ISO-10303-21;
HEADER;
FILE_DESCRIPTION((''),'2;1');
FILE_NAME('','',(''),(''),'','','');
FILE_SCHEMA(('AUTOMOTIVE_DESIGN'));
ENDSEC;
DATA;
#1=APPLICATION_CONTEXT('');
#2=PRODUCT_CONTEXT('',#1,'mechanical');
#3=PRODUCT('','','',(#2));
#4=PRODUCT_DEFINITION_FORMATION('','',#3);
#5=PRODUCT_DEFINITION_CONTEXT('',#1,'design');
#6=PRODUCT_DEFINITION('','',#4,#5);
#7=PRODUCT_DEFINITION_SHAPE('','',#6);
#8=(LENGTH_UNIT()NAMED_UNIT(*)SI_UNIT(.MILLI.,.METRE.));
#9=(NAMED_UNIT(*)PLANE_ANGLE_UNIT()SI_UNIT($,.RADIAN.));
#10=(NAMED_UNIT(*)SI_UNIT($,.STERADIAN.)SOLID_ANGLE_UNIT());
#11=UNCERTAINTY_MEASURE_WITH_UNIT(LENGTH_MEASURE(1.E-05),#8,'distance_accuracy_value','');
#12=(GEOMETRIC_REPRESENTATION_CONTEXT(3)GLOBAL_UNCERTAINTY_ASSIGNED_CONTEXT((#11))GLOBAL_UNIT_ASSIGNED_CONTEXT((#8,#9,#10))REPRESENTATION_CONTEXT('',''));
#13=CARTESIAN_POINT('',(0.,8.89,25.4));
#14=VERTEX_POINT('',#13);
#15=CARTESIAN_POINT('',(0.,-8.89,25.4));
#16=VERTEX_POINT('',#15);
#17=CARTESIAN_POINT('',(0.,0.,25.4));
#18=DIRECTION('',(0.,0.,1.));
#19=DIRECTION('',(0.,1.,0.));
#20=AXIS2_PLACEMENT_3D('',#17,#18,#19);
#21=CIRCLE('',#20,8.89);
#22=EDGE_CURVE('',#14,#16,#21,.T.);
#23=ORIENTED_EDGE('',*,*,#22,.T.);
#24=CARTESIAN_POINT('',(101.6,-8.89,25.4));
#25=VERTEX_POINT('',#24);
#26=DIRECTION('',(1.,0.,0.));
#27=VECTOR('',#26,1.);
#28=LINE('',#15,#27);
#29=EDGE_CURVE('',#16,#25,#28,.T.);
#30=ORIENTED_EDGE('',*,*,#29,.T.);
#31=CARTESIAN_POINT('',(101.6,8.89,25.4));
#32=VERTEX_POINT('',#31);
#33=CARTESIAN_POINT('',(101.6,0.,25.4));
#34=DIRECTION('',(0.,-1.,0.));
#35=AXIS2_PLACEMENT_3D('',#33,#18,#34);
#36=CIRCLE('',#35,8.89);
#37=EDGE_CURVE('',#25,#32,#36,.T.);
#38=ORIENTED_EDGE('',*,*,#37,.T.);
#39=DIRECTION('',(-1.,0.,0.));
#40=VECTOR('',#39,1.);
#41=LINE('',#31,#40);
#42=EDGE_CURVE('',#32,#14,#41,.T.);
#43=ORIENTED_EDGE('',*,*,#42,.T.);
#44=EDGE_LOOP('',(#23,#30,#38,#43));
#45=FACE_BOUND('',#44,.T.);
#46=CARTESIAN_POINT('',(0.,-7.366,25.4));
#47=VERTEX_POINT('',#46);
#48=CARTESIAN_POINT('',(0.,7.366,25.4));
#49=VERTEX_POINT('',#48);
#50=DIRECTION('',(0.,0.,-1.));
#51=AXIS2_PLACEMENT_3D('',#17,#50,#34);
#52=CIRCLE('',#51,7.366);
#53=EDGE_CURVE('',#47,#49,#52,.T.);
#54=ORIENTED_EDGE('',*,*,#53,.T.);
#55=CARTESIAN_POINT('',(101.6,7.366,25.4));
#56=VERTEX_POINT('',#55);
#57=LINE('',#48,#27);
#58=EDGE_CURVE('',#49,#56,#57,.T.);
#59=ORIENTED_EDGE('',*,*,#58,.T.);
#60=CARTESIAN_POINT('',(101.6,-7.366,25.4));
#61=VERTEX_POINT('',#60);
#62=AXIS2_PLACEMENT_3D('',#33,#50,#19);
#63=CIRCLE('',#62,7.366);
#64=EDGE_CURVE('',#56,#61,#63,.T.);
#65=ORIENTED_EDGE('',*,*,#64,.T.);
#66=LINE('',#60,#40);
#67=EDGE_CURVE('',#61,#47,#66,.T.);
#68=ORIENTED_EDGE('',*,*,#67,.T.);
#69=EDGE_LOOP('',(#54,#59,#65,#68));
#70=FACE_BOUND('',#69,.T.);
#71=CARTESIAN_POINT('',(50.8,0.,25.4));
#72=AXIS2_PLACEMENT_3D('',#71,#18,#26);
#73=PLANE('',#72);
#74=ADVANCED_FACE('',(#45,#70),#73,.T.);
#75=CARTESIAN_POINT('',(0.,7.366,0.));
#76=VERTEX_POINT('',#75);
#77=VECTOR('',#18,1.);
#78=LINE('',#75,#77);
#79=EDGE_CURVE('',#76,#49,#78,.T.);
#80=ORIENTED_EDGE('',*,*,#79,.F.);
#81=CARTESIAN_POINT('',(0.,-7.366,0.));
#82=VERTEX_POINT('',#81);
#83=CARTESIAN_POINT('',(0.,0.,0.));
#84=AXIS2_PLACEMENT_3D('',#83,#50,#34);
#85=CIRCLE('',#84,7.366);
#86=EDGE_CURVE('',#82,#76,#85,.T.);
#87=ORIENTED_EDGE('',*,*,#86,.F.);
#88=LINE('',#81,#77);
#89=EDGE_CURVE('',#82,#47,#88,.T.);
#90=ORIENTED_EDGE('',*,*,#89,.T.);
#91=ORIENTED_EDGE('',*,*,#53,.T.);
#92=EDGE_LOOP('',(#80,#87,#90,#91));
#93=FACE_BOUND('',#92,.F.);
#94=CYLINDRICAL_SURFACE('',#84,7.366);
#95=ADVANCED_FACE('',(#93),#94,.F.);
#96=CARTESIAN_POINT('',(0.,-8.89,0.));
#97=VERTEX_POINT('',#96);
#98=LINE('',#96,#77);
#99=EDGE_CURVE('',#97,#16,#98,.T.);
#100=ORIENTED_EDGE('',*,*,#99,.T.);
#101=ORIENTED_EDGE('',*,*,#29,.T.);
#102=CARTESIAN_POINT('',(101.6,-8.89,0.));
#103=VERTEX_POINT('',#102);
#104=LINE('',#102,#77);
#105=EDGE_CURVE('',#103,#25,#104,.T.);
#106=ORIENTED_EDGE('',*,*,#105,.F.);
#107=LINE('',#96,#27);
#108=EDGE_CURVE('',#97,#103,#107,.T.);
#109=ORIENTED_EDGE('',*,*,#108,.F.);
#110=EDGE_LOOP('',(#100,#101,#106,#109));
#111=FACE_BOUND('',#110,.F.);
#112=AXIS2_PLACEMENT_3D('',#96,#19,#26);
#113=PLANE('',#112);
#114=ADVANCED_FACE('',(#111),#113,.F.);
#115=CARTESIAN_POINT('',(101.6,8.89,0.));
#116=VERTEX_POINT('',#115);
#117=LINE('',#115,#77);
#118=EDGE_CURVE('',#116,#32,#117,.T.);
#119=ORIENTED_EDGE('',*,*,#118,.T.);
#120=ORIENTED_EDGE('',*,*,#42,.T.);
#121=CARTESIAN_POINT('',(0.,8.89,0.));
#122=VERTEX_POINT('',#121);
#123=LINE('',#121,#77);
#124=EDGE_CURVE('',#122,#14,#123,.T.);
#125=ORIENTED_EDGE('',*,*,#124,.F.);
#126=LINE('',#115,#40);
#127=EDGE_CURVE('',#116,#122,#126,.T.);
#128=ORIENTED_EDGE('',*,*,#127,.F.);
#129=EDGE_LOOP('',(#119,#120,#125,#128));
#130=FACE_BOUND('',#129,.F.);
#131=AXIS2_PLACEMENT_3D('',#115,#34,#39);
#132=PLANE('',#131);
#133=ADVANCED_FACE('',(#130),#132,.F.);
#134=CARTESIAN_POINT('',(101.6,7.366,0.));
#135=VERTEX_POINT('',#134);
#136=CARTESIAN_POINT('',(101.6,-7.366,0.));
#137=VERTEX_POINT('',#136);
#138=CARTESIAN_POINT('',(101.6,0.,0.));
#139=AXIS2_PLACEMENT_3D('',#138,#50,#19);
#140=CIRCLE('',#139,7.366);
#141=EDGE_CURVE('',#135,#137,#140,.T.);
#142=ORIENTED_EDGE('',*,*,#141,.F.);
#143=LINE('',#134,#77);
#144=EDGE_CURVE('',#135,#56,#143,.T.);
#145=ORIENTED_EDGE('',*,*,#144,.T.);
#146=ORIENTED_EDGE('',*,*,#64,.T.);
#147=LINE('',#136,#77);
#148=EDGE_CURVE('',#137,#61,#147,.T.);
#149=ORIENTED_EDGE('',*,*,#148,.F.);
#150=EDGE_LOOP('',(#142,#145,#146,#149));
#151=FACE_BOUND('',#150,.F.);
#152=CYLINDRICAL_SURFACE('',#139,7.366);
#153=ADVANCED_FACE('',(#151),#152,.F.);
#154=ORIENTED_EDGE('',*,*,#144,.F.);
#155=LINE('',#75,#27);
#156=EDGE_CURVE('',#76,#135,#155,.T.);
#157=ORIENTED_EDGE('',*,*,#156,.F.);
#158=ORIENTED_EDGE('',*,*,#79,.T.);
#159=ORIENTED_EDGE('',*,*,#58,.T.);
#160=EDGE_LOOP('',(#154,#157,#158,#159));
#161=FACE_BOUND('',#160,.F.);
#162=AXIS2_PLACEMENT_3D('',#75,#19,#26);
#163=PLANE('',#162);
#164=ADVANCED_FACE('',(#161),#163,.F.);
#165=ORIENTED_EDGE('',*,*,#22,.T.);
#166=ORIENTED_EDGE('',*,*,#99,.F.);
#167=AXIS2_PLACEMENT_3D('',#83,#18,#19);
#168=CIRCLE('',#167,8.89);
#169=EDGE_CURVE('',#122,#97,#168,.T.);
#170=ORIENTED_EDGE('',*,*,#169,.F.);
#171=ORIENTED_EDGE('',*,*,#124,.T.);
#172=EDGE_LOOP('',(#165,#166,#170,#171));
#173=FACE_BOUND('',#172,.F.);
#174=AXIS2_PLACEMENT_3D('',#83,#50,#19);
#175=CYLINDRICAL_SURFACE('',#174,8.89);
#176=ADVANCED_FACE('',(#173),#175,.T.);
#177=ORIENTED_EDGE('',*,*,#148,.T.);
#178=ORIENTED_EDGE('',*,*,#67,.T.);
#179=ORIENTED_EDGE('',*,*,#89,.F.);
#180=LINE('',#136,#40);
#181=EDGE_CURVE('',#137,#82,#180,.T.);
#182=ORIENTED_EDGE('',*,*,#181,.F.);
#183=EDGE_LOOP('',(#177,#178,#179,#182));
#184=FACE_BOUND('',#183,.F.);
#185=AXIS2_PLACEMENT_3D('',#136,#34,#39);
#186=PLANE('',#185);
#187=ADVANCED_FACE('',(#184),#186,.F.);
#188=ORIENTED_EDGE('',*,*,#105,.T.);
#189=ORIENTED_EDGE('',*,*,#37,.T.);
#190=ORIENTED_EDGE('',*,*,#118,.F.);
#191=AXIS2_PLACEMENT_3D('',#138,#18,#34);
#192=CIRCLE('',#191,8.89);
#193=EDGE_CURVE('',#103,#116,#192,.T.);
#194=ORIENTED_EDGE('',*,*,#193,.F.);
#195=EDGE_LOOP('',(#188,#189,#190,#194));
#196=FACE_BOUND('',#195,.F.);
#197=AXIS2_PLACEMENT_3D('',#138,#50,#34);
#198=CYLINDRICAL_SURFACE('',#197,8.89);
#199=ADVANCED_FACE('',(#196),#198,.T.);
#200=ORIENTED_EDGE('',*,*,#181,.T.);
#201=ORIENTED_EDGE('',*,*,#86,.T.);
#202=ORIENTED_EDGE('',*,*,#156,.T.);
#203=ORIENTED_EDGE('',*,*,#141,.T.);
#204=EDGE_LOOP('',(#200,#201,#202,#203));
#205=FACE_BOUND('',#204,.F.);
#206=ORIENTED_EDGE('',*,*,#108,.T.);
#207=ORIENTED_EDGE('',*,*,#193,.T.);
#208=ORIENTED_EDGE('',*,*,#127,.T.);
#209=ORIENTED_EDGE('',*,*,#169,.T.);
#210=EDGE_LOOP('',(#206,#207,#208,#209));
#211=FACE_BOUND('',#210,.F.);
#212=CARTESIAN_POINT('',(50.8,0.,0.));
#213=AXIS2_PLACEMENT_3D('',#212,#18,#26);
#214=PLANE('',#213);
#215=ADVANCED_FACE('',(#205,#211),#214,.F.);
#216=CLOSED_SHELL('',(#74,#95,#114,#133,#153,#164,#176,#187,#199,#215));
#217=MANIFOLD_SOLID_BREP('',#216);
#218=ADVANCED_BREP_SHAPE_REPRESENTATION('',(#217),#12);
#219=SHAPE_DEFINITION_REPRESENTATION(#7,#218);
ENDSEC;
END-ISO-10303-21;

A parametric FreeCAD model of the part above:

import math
import FreeCAD as App
import Part
import Sketcher
from FreeCAD import Vector
Q = App.Units.Quantity

doc = App.newDocument("Part")
body = doc.addObject("PartDesign::Body", "Body")

# Sketch on XY plane
sketch1 = doc.addObject("Sketcher::SketchObject", "Sketch")
body.addObject(sketch1)
sketch1.AttachmentSupport = (doc.XY_Plane, [""])
sketch1.MapMode = "FlatFace"
sketch1.addGeometry(Part.LineSegment(Vector(102, 9, 0), Vector(0, 9, 0)), False)
sketch1.addGeometry(Part.ArcOfCircle(Part.Circle(Vector(0, 0, 0), Vector(0, 0, 1), 9), math.radians(90), math.radians(270)), False)
sketch1.addGeometry(Part.LineSegment(Vector(0, -9, 0), Vector(102, -9, 0)), False)
sketch1.addGeometry(Part.ArcOfCircle(Part.Circle(Vector(102, 0, 0), Vector(0, 0, 1), 9), math.radians(-90), math.radians(90)), False)
sketch1.addGeometry(Part.ArcOfCircle(Part.Circle(Vector(102, 0, 0), Vector(0, 0, 1), 7), math.radians(-90), math.radians(90)), False)
sketch1.addGeometry(Part.LineSegment(Vector(102, -7, 0), Vector(0, -7, 0)), False)
sketch1.addGeometry(Part.ArcOfCircle(Part.Circle(Vector(0, 0, 0), Vector(0, 0, 1), 7), math.radians(90), math.radians(270)), False)
sketch1.addGeometry(Part.LineSegment(Vector(0, 7, 0), Vector(102, 7, 0)), False)
sketch1.addConstraint(Sketcher.Constraint("Tangent", 0, 2, 1, 1))
sketch1.addConstraint(Sketcher.Constraint("Tangent", 1, 2, 2, 1))
sketch1.addConstraint(Sketcher.Constraint("Tangent", 2, 2, 3, 1))
sketch1.addConstraint(Sketcher.Constraint("Tangent", 3, 2, 0, 1))
sketch1.addConstraint(Sketcher.Constraint("Tangent", 4, 1, 5, 1))
sketch1.addConstraint(Sketcher.Constraint("Tangent", 5, 2, 6, 2))
sketch1.addConstraint(Sketcher.Constraint("Tangent", 6, 1, 7, 1))
sketch1.addConstraint(Sketcher.Constraint("Tangent", 7, 2, 4, 2))
sketch1.addConstraint(Sketcher.Constraint("Horizontal", 0))
sketch1.addConstraint(Sketcher.Constraint("Horizontal", 2))
sketch1.addConstraint(Sketcher.Constraint("Horizontal", 5))
sketch1.addConstraint(Sketcher.Constraint("Horizontal", 7))
sketch1.addConstraint(Sketcher.Constraint("Coincident", 1, 3, -1, 1))
sketch1.addConstraint(Sketcher.Constraint("Coincident", 6, 3, -1, 1))
sketch1.addConstraint(Sketcher.Constraint("Vertical", 4, 3, 2, 2))
sketch1.addConstraint(Sketcher.Constraint("DistanceX", 0, 2, 0, 1, Q("4 in")))
sketch1.addConstraint(Sketcher.Constraint("Radius", 1, Q("0.35 in")))
sketch1.addConstraint(Sketcher.Constraint("Radius", 4, Q("0.29 in")))
pad1 = doc.addObject("PartDesign::Pad", "Pad")
body.addObject(pad1)
pad1.Profile = sketch1
pad1.Length = Q("1 in")

doc.recompute()
